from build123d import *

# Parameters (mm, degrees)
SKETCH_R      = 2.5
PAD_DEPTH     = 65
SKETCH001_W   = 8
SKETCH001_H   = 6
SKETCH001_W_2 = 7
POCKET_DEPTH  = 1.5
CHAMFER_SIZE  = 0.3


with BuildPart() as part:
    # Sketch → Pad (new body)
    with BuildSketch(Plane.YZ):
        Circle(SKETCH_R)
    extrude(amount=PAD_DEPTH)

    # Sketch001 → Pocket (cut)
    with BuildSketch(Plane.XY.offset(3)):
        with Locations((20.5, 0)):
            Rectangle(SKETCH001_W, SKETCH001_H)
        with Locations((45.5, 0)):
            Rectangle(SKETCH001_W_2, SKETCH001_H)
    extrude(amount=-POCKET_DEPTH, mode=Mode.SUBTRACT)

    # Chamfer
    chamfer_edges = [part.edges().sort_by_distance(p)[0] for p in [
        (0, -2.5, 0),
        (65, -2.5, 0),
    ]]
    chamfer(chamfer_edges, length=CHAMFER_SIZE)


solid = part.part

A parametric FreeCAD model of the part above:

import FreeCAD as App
import Part
import Sketcher
Q = App.Units.Quantity


def edges_at(feature, points):
    """Names of the edges that pass closest to the given points."""
    edges = feature.Shape.Edges
    near = lambda p: min(range(len(edges)), key=lambda i: edges[i].distToShape(Part.Vertex(*p))[0])
    return sorted({f"Edge{near(p) + 1}" for p in points})

doc = App.newDocument("Part")
params = doc.addObject("Spreadsheet::Sheet", "Params")
for row, (alias, value) in enumerate([
    ("sketch1_diameter", "5 mm"),
    ("pad1_length", "65 mm"),
    ("sketch2_width", "8 mm"),
    ("sketch2_width2", "7 mm"),
    ("sketch2_height", "6 mm"),
    ("pocket1_length", "1.5 mm"),
    ("chamfer_size", "0.3 mm"),
], start=1):
    params.set(f"A{row}", alias)
    params.set(f"B{row}", "=" + value)
    params.setAlias(f"B{row}", alias)

body = doc.addObject("PartDesign::Body", "Body")

sketch1 = body.newObject("Sketcher::SketchObject", "Sketch")
sketch1.AttachmentSupport = (doc.getObject("YZ_Plane"), [""])
sketch1.MapMode = "FlatFace"
sketch1.addGeometry(Part.Circle(App.Vector(0, 0, 0), App.Vector(0, 0, 1), 2.5), False)
sketch1.addConstraint([
    Sketcher.Constraint("Coincident", 0, 3, -1, 1),
    Sketcher.Constraint("Diameter", 0, Q("5 mm")),
])
sketch1.setExpression("Constraints[1]", "Params.sketch1_diameter")
pad1 = body.newObject("PartDesign::Pad", "Pad")
pad1.Profile = sketch1
pad1.setExpression("Length", "Params.pad1_length")

sketch2 = body.newObject("Sketcher::SketchObject", "Sketch001")
sketch2.AttachmentSupport = (doc.getObject("XY_Plane"), [""])
sketch2.MapMode = "FlatFace"
sketch2.AttachmentOffset = App.Placement(App.Vector(0, 0, 3), App.Rotation())
sketch2.addGeometry([
    Part.LineSegment(App.Vector(16.5, 3, 0), App.Vector(16.5, -3, 0)),
    Part.LineSegment(App.Vector(16.5, -3, 0), App.Vector(24.5, -3, 0)),
    Part.LineSegment(App.Vector(24.5, -3, 0), App.Vector(24.5, 3, 0)),
    Part.LineSegment(App.Vector(24.5, 3, 0), App.Vector(16.5, 3, 0)),
    Part.LineSegment(App.Vector(42, 3, 0), App.Vector(42, -3, 0)),
    Part.LineSegment(App.Vector(42, -3, 0), App.Vector(49, -3, 0)),
    Part.LineSegment(App.Vector(49, -3, 0), App.Vector(49, 3, 0)),
    Part.LineSegment(App.Vector(49, 3, 0), App.Vector(42, 3, 0)),
], False)
sketch2.addConstraint([
    Sketcher.Constraint("Coincident", 0, 2, 1, 1),
    Sketcher.Constraint("Coincident", 1, 2, 2, 1),
    Sketcher.Constraint("Coincident", 2, 2, 3, 1),
    Sketcher.Constraint("Coincident", 3, 2, 0, 1),
    Sketcher.Constraint("Coincident", 4, 2, 5, 1),
    Sketcher.Constraint("Coincident", 5, 2, 6, 1),
    Sketcher.Constraint("Coincident", 6, 2, 7, 1),
    Sketcher.Constraint("Coincident", 7, 2, 4, 1),
    Sketcher.Constraint("Vertical", 0),
    Sketcher.Constraint("Horizontal", 1),
    Sketcher.Constraint("Vertical", 2),
    Sketcher.Constraint("Horizontal", 3),
    Sketcher.Constraint("Vertical", 4),
    Sketcher.Constraint("Horizontal", 5),
    Sketcher.Constraint("Vertical", 6),
    Sketcher.Constraint("Horizontal", 7),
    Sketcher.Constraint("Horizontal", 1, 2, 4, 2),
    Sketcher.Constraint("Horizontal", 3, 2, 6, 2),
    Sketcher.Constraint("DistanceX", 1, 1, 1, 2, Q("8 mm")),
    Sketcher.Constraint("DistanceX", 5, 1, 5, 2, Q("7 mm")),
    Sketcher.Constraint("DistanceY", 0, 2, 0, 1, Q("6 mm")),
    Sketcher.Constraint("DistanceY", 0, 2, -1, 1, Q("3 mm")),
    Sketcher.Constraint("DistanceX", -1, 1, 4, 2, Q("42 mm")),
    Sketcher.Constraint("DistanceX", -1, 1, 0, 2, Q("16.5 mm")),
])
sketch2.setExpression("Constraints[18]", "Params.sketch2_width")
sketch2.setExpression("Constraints[19]", "Params.sketch2_width2")
sketch2.setExpression("Constraints[20]", "Params.sketch2_height")
pocket1 = body.newObject("PartDesign::Pocket", "Pocket")
pocket1.Profile = sketch2
pocket1.setExpression("Length", "Params.pocket1_length")
doc.recompute()

chamfer = body.newObject("PartDesign::Chamfer", "Chamfer")
chamfer.Base = (pocket1, edges_at(pocket1, [(0, -2.5, 0), (65, -2.5, 0)]))
chamfer.setExpression("Size", "Params.chamfer_size")

doc.recompute()
